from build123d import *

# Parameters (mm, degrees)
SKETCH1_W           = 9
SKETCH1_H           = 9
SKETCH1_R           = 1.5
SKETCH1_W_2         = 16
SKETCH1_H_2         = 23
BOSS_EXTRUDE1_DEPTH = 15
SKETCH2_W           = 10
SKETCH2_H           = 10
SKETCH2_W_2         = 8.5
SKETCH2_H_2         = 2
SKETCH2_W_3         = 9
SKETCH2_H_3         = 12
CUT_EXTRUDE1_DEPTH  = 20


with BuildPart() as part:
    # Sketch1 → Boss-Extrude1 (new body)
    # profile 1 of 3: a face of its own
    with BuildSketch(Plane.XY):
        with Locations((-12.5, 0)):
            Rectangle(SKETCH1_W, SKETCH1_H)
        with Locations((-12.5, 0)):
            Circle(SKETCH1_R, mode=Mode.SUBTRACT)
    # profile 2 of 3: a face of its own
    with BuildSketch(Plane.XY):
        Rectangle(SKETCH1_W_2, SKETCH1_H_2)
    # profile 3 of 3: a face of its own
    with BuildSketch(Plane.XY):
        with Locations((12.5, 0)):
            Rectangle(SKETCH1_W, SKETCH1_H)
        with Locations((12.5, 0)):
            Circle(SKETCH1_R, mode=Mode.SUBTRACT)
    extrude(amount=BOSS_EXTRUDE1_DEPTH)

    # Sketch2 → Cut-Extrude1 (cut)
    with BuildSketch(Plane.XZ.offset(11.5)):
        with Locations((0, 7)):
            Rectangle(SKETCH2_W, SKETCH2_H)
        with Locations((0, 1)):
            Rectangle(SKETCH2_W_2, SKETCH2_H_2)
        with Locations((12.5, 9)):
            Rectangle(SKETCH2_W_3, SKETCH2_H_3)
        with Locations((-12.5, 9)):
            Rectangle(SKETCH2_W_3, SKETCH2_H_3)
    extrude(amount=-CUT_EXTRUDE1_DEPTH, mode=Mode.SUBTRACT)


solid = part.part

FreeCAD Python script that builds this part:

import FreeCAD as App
import Part
import Sketcher
Q = App.Units.Quantity

doc = App.newDocument("Part")
body = doc.addObject("PartDesign::Body", "Body")

# Sketch on XY plane
sketch1 = body.newObject("Sketcher::SketchObject", "Sketch")
sketch1.AttachmentSupport = (doc.getObject("XY_Plane"), [""])
sketch1.MapMode = "FlatFace"
sketch1.addGeometry([
    Part.LineSegment(App.Vector(-17, 4.5, 0), App.Vector(-17, -4.5, 0)),  # 0
    Part.LineSegment(App.Vector(-17, -4.5, 0), App.Vector(-8, -4.5, 0)),  # 1
    Part.LineSegment(App.Vector(-8, -4.5, 0), App.Vector(-8, -11.5, 0)),  # 2
    Part.LineSegment(App.Vector(-8, -11.5, 0), App.Vector(8, -11.5, 0)),  # 3
    Part.LineSegment(App.Vector(8, -11.5, 0), App.Vector(8, -4.5, 0)),  # 4
    Part.LineSegment(App.Vector(8, -4.5, 0), App.Vector(17, -4.5, 0)),  # 5
    Part.LineSegment(App.Vector(17, -4.5, 0), App.Vector(17, 4.5, 0)),  # 6
    Part.LineSegment(App.Vector(17, 4.5, 0), App.Vector(8, 4.5, 0)),  # 7
    Part.LineSegment(App.Vector(8, 4.5, 0), App.Vector(8, 11.5, 0)),  # 8
    Part.LineSegment(App.Vector(8, 11.5, 0), App.Vector(-8, 11.5, 0)),  # 9
    Part.LineSegment(App.Vector(-8, 11.5, 0), App.Vector(-8, 4.5, 0)),  # 10
    Part.LineSegment(App.Vector(-8, 4.5, 0), App.Vector(-17, 4.5, 0)),  # 11
    Part.Circle(App.Vector(-12.5, 0, 0), App.Vector(0, 0, 1), 1.5),  # 12
    Part.Circle(App.Vector(12.5, 0, 0), App.Vector(0, 0, 1), 1.5),  # 13
], False)
sketch1.addConstraint([
    Sketcher.Constraint("Coincident", 0, 2, 1, 1),
    Sketcher.Constraint("Coincident", 1, 2, 2, 1),
    Sketcher.Constraint("Coincident", 2, 2, 3, 1),
    Sketcher.Constraint("Coincident", 3, 2, 4, 1),
    Sketcher.Constraint("Coincident", 4, 2, 5, 1),
    Sketcher.Constraint("Coincident", 5, 2, 6, 1),
    Sketcher.Constraint("Coincident", 6, 2, 7, 1),
    Sketcher.Constraint("Coincident", 7, 2, 8, 1),
    Sketcher.Constraint("Coincident", 8, 2, 9, 1),
    Sketcher.Constraint("Coincident", 9, 2, 10, 1),
    Sketcher.Constraint("Coincident", 10, 2, 11, 1),
    Sketcher.Constraint("Coincident", 11, 2, 0, 1),
    Sketcher.Constraint("Vertical", 0),
    Sketcher.Constraint("Horizontal", 1),
    Sketcher.Constraint("Vertical", 2),
    Sketcher.Constraint("Horizontal", 3),
    Sketcher.Constraint("Vertical", 4),
    Sketcher.Constraint("Horizontal", 5),
    Sketcher.Constraint("Vertical", 6),
    Sketcher.Constraint("Horizontal", 7),
    Sketcher.Constraint("Vertical", 8),
    Sketcher.Constraint("Horizontal", 9),
    Sketcher.Constraint("Vertical", 10),
    Sketcher.Constraint("Horizontal", 11),
    Sketcher.Constraint("Equal", 12, 13),
    Sketcher.Constraint("Symmetric", 12, 3, 13, 3, -1, 1),
    Sketcher.Constraint("Symmetric", 0, 2, 6, 2, -1, 1),
    Sketcher.Constraint("Symmetric", 2, 2, 8, 2, -1, 1),
    Sketcher.Constraint("Symmetric", 4, 2, 10, 2, -1, 1),
    Sketcher.Constraint("Symmetric", 1, 2, 4, 2, -2),
    Sketcher.Constraint("PointOnObject", 12, 3, -1),
    Sketcher.Constraint("Equal", 11, 0),
    Sketcher.Constraint("Diameter", 12, Q("3 mm")),
    Sketcher.Constraint("DistanceX", 1, 1, 1, 2, Q("9 mm")),
    Sketcher.Constraint("DistanceX", 3, 1, 3, 2, Q("16 mm")),
    Sketcher.Constraint("DistanceY", 2, 2, 2, 1, Q("7 mm")),
    Sketcher.Constraint("DistanceX", 12, 3, 13, 3, Q("25 mm")),
])
pad1 = body.newObject("PartDesign::Pad", "Pad")
pad1.Profile = sketch1
pad1.Length = 15

# Sketch on XZ plane
sketch2 = body.newObject("Sketcher::SketchObject", "Sketch001")
sketch2.AttachmentSupport = (doc.getObject("XZ_Plane"), [""])
sketch2.MapMode = "FlatFace"
sketch2.AttachmentOffset = App.Placement(App.Vector(0, 0, 11.5), App.Rotation())
sketch2.addGeometry([
    Part.LineSegment(App.Vector(-5, 12, 0), App.Vector(-5, 2, 0)),  # 0
    Part.LineSegment(App.Vector(-5, 2, 0), App.Vector(-4.25, 2, 0)),  # 1
    Part.LineSegment(App.Vector(-4.25, 2, 0), App.Vector(-4.25, 0, 0)),  # 2
    Part.LineSegment(App.Vector(-4.25, 0, 0), App.Vector(4.25, 0, 0)),  # 3
    Part.LineSegment(App.Vector(4.25, 0, 0), App.Vector(4.25, 2, 0)),  # 4
    Part.LineSegment(App.Vector(4.25, 2, 0), App.Vector(5, 2, 0)),  # 5
    Part.LineSegment(App.Vector(5, 2, 0), App.Vector(5, 12, 0)),  # 6
    Part.LineSegment(App.Vector(5, 12, 0), App.Vector(-5, 12, 0)),  # 7
    Part.LineSegment(App.Vector(8, 15, 0), App.Vector(8, 3, 0)),  # 8
    Part.LineSegment(App.Vector(8, 3, 0), App.Vector(17, 3, 0)),  # 9
    Part.LineSegment(App.Vector(17, 3, 0), App.Vector(17, 15, 0)),  # 10
    Part.LineSegment(App.Vector(17, 15, 0), App.Vector(8, 15, 0)),  # 11
    Part.LineSegment(App.Vector(-17, 15, 0), App.Vector(-17, 3, 0)),  # 12
    Part.LineSegment(App.Vector(-17, 3, 0), App.Vector(-8, 3, 0)),  # 13
    Part.LineSegment(App.Vector(-8, 3, 0), App.Vector(-8, 15, 0)),  # 14
    Part.LineSegment(App.Vector(-8, 15, 0), App.Vector(-17, 15, 0)),  # 15
], False)
sketch2.addConstraint([
    Sketcher.Constraint("Coincident", 0, 2, 1, 1),
    Sketcher.Constraint("Coincident", 1, 2, 2, 1),
    Sketcher.Constraint("Coincident", 2, 2, 3, 1),
    Sketcher.Constraint("Coincident", 3, 2, 4, 1),
    Sketcher.Constraint("Coincident", 4, 2, 5, 1),
    Sketcher.Constraint("Coincident", 5, 2, 6, 1),
    Sketcher.Constraint("Coincident", 6, 2, 7, 1),
    Sketcher.Constraint("Coincident", 7, 2, 0, 1),
    Sketcher.Constraint("Coincident", 8, 2, 9, 1),
    Sketcher.Constraint("Coincident", 9, 2, 10, 1),
    Sketcher.Constraint("Coincident", 10, 2, 11, 1),
    Sketcher.Constraint("Coincident", 11, 2, 8, 1),
    Sketcher.Constraint("Coincident", 12, 2, 13, 1),
    Sketcher.Constraint("Coincident", 13, 2, 14, 1),
    Sketcher.Constraint("Coincident", 14, 2, 15, 1),
    Sketcher.Constraint("Coincident", 15, 2, 12, 1),
    Sketcher.Constraint("Vertical", 0),
    Sketcher.Constraint("Horizontal", 1),
    Sketcher.Constraint("Vertical", 2),
    Sketcher.Constraint("Horizontal", 3),
    Sketcher.Constraint("Vertical", 4),
    Sketcher.Constraint("Horizontal", 5),
    Sketcher.Constraint("Vertical", 6),
    Sketcher.Constraint("Horizontal", 7),
    Sketcher.Constraint("Vertical", 8),
    Sketcher.Constraint("Horizontal", 9),
    Sketcher.Constraint("Vertical", 10),
    Sketcher.Constraint("Horizontal", 11),
    Sketcher.Constraint("Vertical", 12),
    Sketcher.Constraint("Horizontal", 13),
    Sketcher.Constraint("Vertical", 14),
    Sketcher.Constraint("Horizontal", 15),
    Sketcher.Constraint("Symmetric", 2, 2, 3, 2, -1, 1),
    Sketcher.Constraint("Symmetric", 0, 2, 5, 2, -2),
    Sketcher.Constraint("Symmetric", 9, 2, 12, 2, -2),
    Sketcher.Constraint("Symmetric", 11, 2, 14, 2, -2),
    Sketcher.Constraint("Equal", 7, 0),
    Sketcher.Constraint("DistanceX", 7, 2, 7, 1, Q("10 mm")),
    Sketcher.Constraint("DistanceX", 9, 1, 9, 2, Q("9 mm")),
    Sketcher.Constraint("DistanceY", 2, 2, 2, 1, Q("2 mm")),
    Sketcher.Constraint("DistanceY", 8, 2, 8, 1, Q("12 mm")),
    Sketcher.Constraint("DistanceX", 3, 1, 3, 2, Q("8.5 mm")),
    Sketcher.Constraint("DistanceX", -1, 1, 8, 2, Q("8 mm")),
    Sketcher.Constraint("DistanceY", -1, 1, 8, 2, Q("3 mm")),
])
pocket1 = body.newObject("PartDesign::Pocket", "Pocket")
pocket1.Profile = sketch2
pocket1.Length = 20

doc.recompute()
